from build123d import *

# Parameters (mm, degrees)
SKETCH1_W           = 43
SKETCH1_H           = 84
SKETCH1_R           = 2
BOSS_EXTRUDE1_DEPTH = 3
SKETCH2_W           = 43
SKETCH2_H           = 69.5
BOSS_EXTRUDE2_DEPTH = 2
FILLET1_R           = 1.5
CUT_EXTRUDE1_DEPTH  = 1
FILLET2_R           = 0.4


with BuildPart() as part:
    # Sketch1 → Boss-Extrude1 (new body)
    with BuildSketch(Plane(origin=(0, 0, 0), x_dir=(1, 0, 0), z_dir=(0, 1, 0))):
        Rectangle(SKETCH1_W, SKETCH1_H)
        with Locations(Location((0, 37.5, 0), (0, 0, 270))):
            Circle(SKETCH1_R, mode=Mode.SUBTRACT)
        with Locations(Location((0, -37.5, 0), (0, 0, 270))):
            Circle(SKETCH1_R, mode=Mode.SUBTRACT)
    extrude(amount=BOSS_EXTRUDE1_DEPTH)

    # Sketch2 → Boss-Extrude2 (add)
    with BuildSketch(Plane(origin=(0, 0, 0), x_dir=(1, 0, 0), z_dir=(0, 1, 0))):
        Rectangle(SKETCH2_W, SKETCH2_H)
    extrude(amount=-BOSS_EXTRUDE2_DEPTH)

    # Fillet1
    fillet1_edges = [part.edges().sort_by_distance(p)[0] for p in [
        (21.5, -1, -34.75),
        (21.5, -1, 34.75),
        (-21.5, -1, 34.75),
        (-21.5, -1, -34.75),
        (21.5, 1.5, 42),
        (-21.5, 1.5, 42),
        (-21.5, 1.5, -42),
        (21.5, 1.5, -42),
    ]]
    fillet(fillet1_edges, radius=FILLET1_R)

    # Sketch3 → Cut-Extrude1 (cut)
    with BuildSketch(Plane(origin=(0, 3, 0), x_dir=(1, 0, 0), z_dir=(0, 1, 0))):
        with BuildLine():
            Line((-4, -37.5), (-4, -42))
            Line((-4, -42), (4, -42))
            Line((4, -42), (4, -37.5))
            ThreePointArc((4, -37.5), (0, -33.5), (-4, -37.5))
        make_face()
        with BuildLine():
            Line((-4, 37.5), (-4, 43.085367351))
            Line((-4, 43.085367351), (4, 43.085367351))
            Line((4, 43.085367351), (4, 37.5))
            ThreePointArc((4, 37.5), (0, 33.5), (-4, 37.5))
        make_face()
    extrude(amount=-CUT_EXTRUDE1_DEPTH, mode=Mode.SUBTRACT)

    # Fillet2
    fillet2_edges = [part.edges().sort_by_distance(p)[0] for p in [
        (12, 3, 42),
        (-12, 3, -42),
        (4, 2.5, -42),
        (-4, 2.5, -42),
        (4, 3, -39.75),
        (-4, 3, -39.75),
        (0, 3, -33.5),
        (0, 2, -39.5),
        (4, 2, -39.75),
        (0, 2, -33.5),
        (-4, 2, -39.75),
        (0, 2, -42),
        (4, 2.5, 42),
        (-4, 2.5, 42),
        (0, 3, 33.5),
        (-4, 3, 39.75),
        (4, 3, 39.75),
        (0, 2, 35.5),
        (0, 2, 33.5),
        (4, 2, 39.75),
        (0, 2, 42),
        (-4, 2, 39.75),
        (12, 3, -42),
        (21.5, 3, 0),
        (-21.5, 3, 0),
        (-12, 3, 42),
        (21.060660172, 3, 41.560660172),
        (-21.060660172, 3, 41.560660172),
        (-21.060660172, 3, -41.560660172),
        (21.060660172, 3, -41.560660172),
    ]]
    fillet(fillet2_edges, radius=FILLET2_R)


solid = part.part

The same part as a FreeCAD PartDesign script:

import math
import FreeCAD as App
import Part
import Sketcher
from FreeCAD import Vector
Q = App.Units.Quantity


def edges_at(feature, points):
    """Names of the edges that pass closest to the given points."""
    edges = feature.Shape.Edges
    near = lambda p: min(range(len(edges)), key=lambda i: edges[i].distToShape(Part.Vertex(*p))[0])
    return sorted({f"Edge{near(p) + 1}" for p in points})


def add_polygon(sketch, points):
    """Adds a closed chain of lines whose ends are joined by coincident constraints."""
    first, n = sketch.GeometryCount, len(points)
    for a, b in zip(points, points[1:] + points[:1]):
        sketch.addGeometry(Part.LineSegment(App.Vector(*a, 0), App.Vector(*b, 0)), False)
    for i in range(n):
        sketch.addConstraint(Sketcher.Constraint("Coincident", first + i, 2, first + (i + 1) % n, 1))

doc = App.newDocument("Part")
params = doc.addObject("Spreadsheet::Sheet", "Params")
for row, (alias, value) in enumerate([
    ("sketch1_diameter", "4 mm"),
    ("sketch1_width", "43 mm"),
    ("sketch1_height", "84 mm"),
    ("pad1_length", "3 mm"),
    ("sketch2_width", "43 mm"),
    ("sketch2_height", "69.5 mm"),
    ("pad2_length", "2 mm"),
    ("fillet_radius", "1.5 mm"),
    ("sketch3_radius", "4 mm"),
    ("sketch3_height", "4.5 mm"),
    ("pocket1_length", "1 mm"),
    ("fillet2_radius", "0.4 mm"),
], start=1):
    params.set(f"A{row}", alias)
    params.set(f"B{row}", "=" + value)
    params.setAlias(f"B{row}", alias)

body = doc.addObject("PartDesign::Body", "Body")

sketch1 = body.newObject("Sketcher::SketchObject", "Sketch")
sketch1.AttachmentSupport = (doc.getObject("XZ_Plane"), [""])
sketch1.MapMode = "FlatFace"
add_polygon(sketch1, [(-21.5, -42), (-21.5, 42), (21.5, 42), (21.5, -42)])
sketch1.addGeometry(Part.Circle(Vector(0, 37.5, 0), Vector(0, 0, 1), 2), False)
sketch1.addGeometry(Part.Circle(Vector(0, -37.5, 0), Vector(0, 0, 1), 2), False)
sketch1.addConstraint(Sketcher.Constraint("Vertical", 0))
sketch1.addConstraint(Sketcher.Constraint("Horizontal", 1))
sketch1.addConstraint(Sketcher.Constraint("Vertical", 2))
sketch1.addConstraint(Sketcher.Constraint("Horizontal", 3))
sketch1.addConstraint(Sketcher.Constraint("Equal", 4, 5))
sketch1.addConstraint(Sketcher.Constraint("Symmetric", 4, 3, 5, 3, -1, 1))
sketch1.addConstraint(Sketcher.Constraint("Symmetric", 0, 2, 2, 2, -1, 1))
sketch1.addConstraint(Sketcher.Constraint("PointOnObject", 4, 3, -2))
sketch1.addConstraint(Sketcher.Constraint("Diameter", 4, Q("4 mm")))
sketch1.addConstraint(Sketcher.Constraint("DistanceX", 1, 1, 1, 2, Q("43 mm")))
sketch1.addConstraint(Sketcher.Constraint("DistanceY", 0, 1, 0, 2, Q("84 mm")))
sketch1.addConstraint(Sketcher.Constraint("DistanceY", 5, 3, 4, 3, Q("75 mm")))
sketch1.setExpression("Constraints[12]", "Params.sketch1_diameter")
sketch1.setExpression("Constraints[13]", "Params.sketch1_width")
sketch1.setExpression("Constraints[14]", "Params.sketch1_height")
pad1 = body.newObject("PartDesign::Pad", "Pad")
pad1.Profile = sketch1
pad1.setExpression("Length", "Params.pad1_length")
pad1.Reversed = True

sketch2 = body.newObject("Sketcher::SketchObject", "Sketch001")
sketch2.AttachmentSupport = (doc.getObject("XZ_Plane"), [""])
sketch2.MapMode = "FlatFace"
add_polygon(sketch2, [(-22, -35), (-22, 35), (22, 35), (22, -35)])
sketch2.addConstraint(Sketcher.Constraint("Vertical", 0))
sketch2.addConstraint(Sketcher.Constraint("Horizontal", 1))
sketch2.addConstraint(Sketcher.Constraint("Vertical", 2))
sketch2.addConstraint(Sketcher.Constraint("Horizontal", 3))
sketch2.addConstraint(Sketcher.Constraint("Symmetric", 0, 2, 2, 2, -1, 1))
sketch2.addConstraint(Sketcher.Constraint("DistanceX", 1, 1, 1, 2, Q("43 mm")))
sketch2.addConstraint(Sketcher.Constraint("DistanceY", 0, 1, 0, 2, Q("69.5 mm")))
sketch2.setExpression("Constraints[9]", "Params.sketch2_width")
sketch2.setExpression("Constraints[10]", "Params.sketch2_height")
pad2 = body.newObject("PartDesign::Pad", "Pad001")
pad2.Profile = sketch2
pad2.setExpression("Length", "Params.pad2_length")
doc.recompute()

fillet = body.newObject("PartDesign::Fillet", "Fillet")
fillet.Base = (pad2, edges_at(pad2, [
    (21.5, -1, -34.75),
    (21.5, -1, 34.75),
    (-21.5, -1, 34.75),
    (-21.5, -1, -34.75),
    (21.5, 1.5, 42),
    (-21.5, 1.5, 42),
    (-21.5, 1.5, -42),
    (21.5, 1.5, -42),
]))
fillet.setExpression("Radius", "Params.fillet_radius")

sketch3 = body.newObject("Sketcher::SketchObject", "Sketch002")
sketch3.AttachmentSupport = (doc.getObject("XZ_Plane"), [""])
sketch3.MapMode = "FlatFace"
sketch3.AttachmentOffset = App.Placement(Vector(0, 0, -3), App.Rotation())
sketch3.addGeometry(Part.LineSegment(Vector(-4, 37.5, 0), Vector(-4, 42, 0)), False)
sketch3.addGeometry(Part.LineSegment(Vector(-4, 42, 0), Vector(4, 42, 0)), False)
sketch3.addGeometry(Part.LineSegment(Vector(4, 42, 0), Vector(4, 37.5, 0)), False)
sketch3.addGeometry(Part.ArcOfCircle(Part.Circle(Vector(0, 37.5, 0), Vector(0, 0, 1), 4), math.radians(180), math.radians(360)), False)
sketch3.addGeometry(Part.LineSegment(Vector(-4, -43.1, 0), Vector(-4, -37.5, 0)), False)
sketch3.addGeometry(Part.ArcOfCircle(Part.Circle(Vector(0, -37.5, 0), Vector(0, 0, 1), 4), math.radians(0), math.radians(180)), False)
sketch3.addGeometry(Part.LineSegment(Vector(4, -37.5, 0), Vector(4, -43.1, 0)), False)
sketch3.addGeometry(Part.LineSegment(Vector(4, -43.1, 0), Vector(-4, -43.1, 0)), False)
sketch3.addConstraint(Sketcher.Constraint("Coincident", 0, 2, 1, 1))
sketch3.addConstraint(Sketcher.Constraint("Coincident", 1, 2, 2, 1))
sketch3.addConstraint(Sketcher.Constraint("Tangent", 2, 2, 3, 2))
sketch3.addConstraint(Sketcher.Constraint("Tangent", 3, 1, 0, 1))
sketch3.addConstraint(Sketcher.Constraint("Tangent", 4, 2, 5, 2))
sketch3.addConstraint(Sketcher.Constraint("Tangent", 5, 1, 6, 1))
sketch3.addConstraint(Sketcher.Constraint("Coincident", 6, 2, 7, 1))
sketch3.addConstraint(Sketcher.Constraint("Coincident", 7, 2, 4, 1))
sketch3.addConstraint(Sketcher.Constraint("Vertical", 0))
sketch3.addConstraint(Sketcher.Constraint("Horizontal", 1))
sketch3.addConstraint(Sketcher.Constraint("Vertical", 2))
sketch3.addConstraint(Sketcher.Constraint("Vertical", 4))
sketch3.addConstraint(Sketcher.Constraint("Vertical", 6))
sketch3.addConstraint(Sketcher.Constraint("Horizontal", 7))
sketch3.addConstraint(Sketcher.Constraint("Equal", 3, 5))
sketch3.addConstraint(Sketcher.Constraint("Symmetric", 3, 3, 5, 3, -1, 1))
sketch3.addConstraint(Sketcher.Constraint("PointOnObject", 3, 3, -2))
sketch3.addConstraint(Sketcher.Constraint("Radius", 3, Q("4 mm")))
sketch3.addConstraint(Sketcher.Constraint("DistanceY", 0, 1, 0, 2, Q("4.5 mm")))
sketch3.addConstraint(Sketcher.Constraint("DistanceY", -1, 1, 0, 2, Q("42 mm")))
sketch3.addConstraint(Sketcher.Constraint("DistanceY", 4, 1, 4, 2, Q("5.585367 mm")))
sketch3.setExpression("Constraints[17]", "Params.sketch3_radius")
sketch3.setExpression("Constraints[18]", "Params.sketch3_height")
pocket1 = body.newObject("PartDesign::Pocket", "Pocket")
pocket1.Profile = sketch3
pocket1.setExpression("Length", "Params.pocket1_length")
pocket1.Reversed = True
doc.recompute()

fillet2 = body.newObject("PartDesign::Fillet", "Fillet001")
fillet2.Base = (pocket1, edges_at(pocket1, [
    (12, 3, 42),
    (-12, 3, -42),
    (4, 2.5, -42),
    (-4, 2.5, -42),
    (4, 3, -39.75),
    (-4, 3, -39.75),
    (0, 3, -33.5),
    (0, 2, -39.5),
    (4, 2, -39.75),
    (0, 2, -33.5),
    (-4, 2, -39.75),
    (0, 2, -42),
    (4, 2.5, 42),
    (-4, 2.5, 42),
    (0, 3, 33.5),
    (-4, 3, 39.75),
    (4, 3, 39.75),
    (0, 2, 35.5),
    (0, 2, 33.5),
    (4, 2, 39.75),
    (0, 2, 42),
    (-4, 2, 39.75),
    (12, 3, -42),
    (21.5, 3, 0),
    (-21.5, 3, 0),
    (-12, 3, 42),
    (21.061, 3, 41.561),
    (-21.061, 3, 41.561),
    (-21.061, 3, -41.561),
    (21.061, 3, -41.561),
]))
fillet2.setExpression("Radius", "Params.fillet2_radius")

doc.recompute()
